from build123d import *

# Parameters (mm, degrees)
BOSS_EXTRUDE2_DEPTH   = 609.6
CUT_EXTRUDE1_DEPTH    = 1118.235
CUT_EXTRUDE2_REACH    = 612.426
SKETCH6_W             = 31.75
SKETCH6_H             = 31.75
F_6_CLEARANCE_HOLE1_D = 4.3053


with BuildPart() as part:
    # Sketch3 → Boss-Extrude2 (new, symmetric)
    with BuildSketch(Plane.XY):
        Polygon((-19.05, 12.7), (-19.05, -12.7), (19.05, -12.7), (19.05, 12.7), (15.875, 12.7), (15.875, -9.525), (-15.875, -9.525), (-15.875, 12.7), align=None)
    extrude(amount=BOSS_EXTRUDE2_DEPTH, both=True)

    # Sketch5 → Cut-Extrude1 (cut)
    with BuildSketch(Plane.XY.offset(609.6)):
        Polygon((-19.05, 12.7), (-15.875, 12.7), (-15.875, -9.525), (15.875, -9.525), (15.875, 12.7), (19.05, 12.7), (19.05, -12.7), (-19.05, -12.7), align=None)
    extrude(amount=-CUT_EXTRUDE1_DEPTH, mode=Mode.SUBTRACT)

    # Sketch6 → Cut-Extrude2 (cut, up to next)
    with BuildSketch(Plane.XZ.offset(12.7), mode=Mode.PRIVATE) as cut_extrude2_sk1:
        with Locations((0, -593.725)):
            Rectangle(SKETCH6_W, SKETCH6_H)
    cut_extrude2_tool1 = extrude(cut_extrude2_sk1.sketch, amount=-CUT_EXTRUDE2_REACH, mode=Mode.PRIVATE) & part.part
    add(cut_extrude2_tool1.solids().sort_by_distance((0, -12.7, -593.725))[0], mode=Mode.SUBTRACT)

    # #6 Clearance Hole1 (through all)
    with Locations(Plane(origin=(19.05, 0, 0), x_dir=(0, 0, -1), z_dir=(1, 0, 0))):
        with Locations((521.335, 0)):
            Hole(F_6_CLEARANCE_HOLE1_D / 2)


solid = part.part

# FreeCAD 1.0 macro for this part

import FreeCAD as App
import Part
import Sketcher

V = App.Vector
Q = App.Units.Quantity

doc = App.newDocument("Part")
body = doc.addObject("PartDesign::Body", "Body")

# Sketch on XY plane
sketch1 = body.newObject("Sketcher::SketchObject", "Sketch")
sketch1.AttachmentSupport = (doc.getObject("XY_Plane"), [""])
sketch1.MapMode = "FlatFace"
sketch1.addGeometry([
    Part.LineSegment(V(-19.1, 12.7, 0), V(-19.1, -12.7, 0)),  # 0
    Part.LineSegment(V(-19.1, -12.7, 0), V(19.1, -12.7, 0)),  # 1
    Part.LineSegment(V(19.1, -12.7, 0), V(19.1, 12.7, 0)),  # 2
    Part.LineSegment(V(19.1, 12.7, 0), V(15.9, 12.7, 0)),  # 3
    Part.LineSegment(V(15.9, 12.7, 0), V(15.9, -9.5, 0)),  # 4
    Part.LineSegment(V(15.9, -9.5, 0), V(-15.9, -9.5, 0)),  # 5
    Part.LineSegment(V(-15.9, -9.5, 0), V(-15.9, 12.7, 0)),  # 6
    Part.LineSegment(V(-15.9, 12.7, 0), V(-19.1, 12.7, 0)),  # 7
], False)
sketch1.addConstraint([
    Sketcher.Constraint("Coincident", 0, 2, 1, 1),
    Sketcher.Constraint("Coincident", 1, 2, 2, 1),
    Sketcher.Constraint("Coincident", 2, 2, 3, 1),
    Sketcher.Constraint("Coincident", 3, 2, 4, 1),
    Sketcher.Constraint("Coincident", 4, 2, 5, 1),
    Sketcher.Constraint("Coincident", 5, 2, 6, 1),
    Sketcher.Constraint("Coincident", 6, 2, 7, 1),
    Sketcher.Constraint("Coincident", 7, 2, 0, 1),
    Sketcher.Constraint("Vertical", 0),
    Sketcher.Constraint("Horizontal", 1),
    Sketcher.Constraint("Vertical", 2),
    Sketcher.Constraint("Horizontal", 3),
    Sketcher.Constraint("Vertical", 4),
    Sketcher.Constraint("Horizontal", 5),
    Sketcher.Constraint("Vertical", 6),
    Sketcher.Constraint("Horizontal", 7),
    Sketcher.Constraint("Symmetric", 0, 2, 2, 2, -1, 1),
    Sketcher.Constraint("Symmetric", 3, 2, 6, 2, -2),
    Sketcher.Constraint("DistanceY", 0, 2, 0, 1, Q("1 in")),
    Sketcher.Constraint("DistanceX", 1, 1, 1, 2, Q("1.5 in")),
    Sketcher.Constraint("DistanceX", 5, 2, 5, 1, Q("1.25 in")),
    Sketcher.Constraint("DistanceY", 4, 2, 4, 1, Q("0.875 in")),
])
pad1 = body.newObject("PartDesign::Pad", "Pad")
pad1.Profile = sketch1
pad1.Length = Q("48 in")
pad1.Midplane = True

# Sketch on XY plane
sketch2 = body.newObject("Sketcher::SketchObject", "Sketch001")
sketch2.AttachmentSupport = (doc.getObject("XY_Plane"), [""])
sketch2.MapMode = "FlatFace"
sketch2.AttachmentOffset = App.Placement(V(0, 0, 24 * 25.4), App.Rotation())
sketch2.addGeometry([
    Part.LineSegment(V(-15.9, 12.7, 0), V(-19.1, 12.7, 0)),  # 0
    Part.LineSegment(V(-19.1, 12.7, 0), V(-19.1, -12.7, 0)),  # 1
    Part.LineSegment(V(-19.1, -12.7, 0), V(19.1, -12.7, 0)),  # 2
    Part.LineSegment(V(19.1, -12.7, 0), V(19.1, 12.7, 0)),  # 3
    Part.LineSegment(V(19.1, 12.7, 0), V(15.9, 12.7, 0)),  # 4
    Part.LineSegment(V(15.9, 12.7, 0), V(15.9, -9.5, 0)),  # 5
    Part.LineSegment(V(15.9, -9.5, 0), V(-15.9, -9.5, 0)),  # 6
    Part.LineSegment(V(-15.9, -9.5, 0), V(-15.9, 12.7, 0)),  # 7
], False)
sketch2.addConstraint([
    Sketcher.Constraint("Coincident", 0, 2, 1, 1),
    Sketcher.Constraint("Coincident", 1, 2, 2, 1),
    Sketcher.Constraint("Coincident", 2, 2, 3, 1),
    Sketcher.Constraint("Coincident", 3, 2, 4, 1),
    Sketcher.Constraint("Coincident", 4, 2, 5, 1),
    Sketcher.Constraint("Coincident", 5, 2, 6, 1),
    Sketcher.Constraint("Coincident", 6, 2, 7, 1),
    Sketcher.Constraint("Coincident", 7, 2, 0, 1),
    Sketcher.Constraint("Horizontal", 0),
    Sketcher.Constraint("Vertical", 1),
    Sketcher.Constraint("Horizontal", 2),
    Sketcher.Constraint("Vertical", 3),
    Sketcher.Constraint("Horizontal", 4),
    Sketcher.Constraint("Vertical", 5),
    Sketcher.Constraint("Horizontal", 6),
    Sketcher.Constraint("Vertical", 7),
    Sketcher.Constraint("Symmetric", 0, 2, 2, 2, -1, 1),
    Sketcher.Constraint("Symmetric", 4, 2, 7, 2, -2),
    Sketcher.Constraint("DistanceY", 1, 2, 1, 1, Q("1 in")),
    Sketcher.Constraint("DistanceX", 2, 1, 2, 2, Q("1.5 in")),
    Sketcher.Constraint("DistanceX", 6, 2, 6, 1, Q("1.25 in")),
    Sketcher.Constraint("DistanceY", 5, 2, 5, 1, Q("0.875 in")),
])
pocket1 = body.newObject("PartDesign::Pocket", "Pocket")
pocket1.Profile = sketch2
pocket1.Length = Q("44.025 in")

# Sketch on XZ plane
sketch3 = body.newObject("Sketcher::SketchObject", "Sketch002")
sketch3.AttachmentSupport = (doc.getObject("XZ_Plane"), [""])
sketch3.MapMode = "FlatFace"
sketch3.AttachmentOffset = App.Placement(V(0, 0, 0.5 * 25.4), App.Rotation())
sketch3.addGeometry([
    Part.LineSegment(V(-16, -578, 0), V(-16, -610, 0)),
    Part.LineSegment(V(-16, -610, 0), V(16, -610, 0)),
    Part.LineSegment(V(16, -610, 0), V(16, -578, 0)),
    Part.LineSegment(V(16, -578, 0), V(-16, -578, 0)),
], False)
sketch3.addConstraint([
    Sketcher.Constraint("Coincident", 0, 2, 1, 1),
    Sketcher.Constraint("Coincident", 1, 2, 2, 1),
    Sketcher.Constraint("Coincident", 2, 2, 3, 1),
    Sketcher.Constraint("Coincident", 3, 2, 0, 1),
    Sketcher.Constraint("Vertical", 0),
    Sketcher.Constraint("Horizontal", 1),
    Sketcher.Constraint("Vertical", 2),
    Sketcher.Constraint("Horizontal", 3),
    Sketcher.Constraint("Equal", 3, 0),
    Sketcher.Constraint("DistanceY", 0, 2, -1, 1, Q("24 in")),
    Sketcher.Constraint("DistanceX", 1, 1, 1, 2, Q("1.25 in")),
    Sketcher.Constraint("DistanceX", 0, 2, -1, 1, Q("0.625 in")),
])
pocket2 = body.newObject("PartDesign::Pocket", "Pocket001")
pocket2.Profile = sketch3
pocket2.Type = "UpToFirst"

# Sketch on YZ plane
sketch4 = body.newObject("Sketcher::SketchObject", "Sketch003")
sketch4.AttachmentSupport = (doc.getObject("YZ_Plane"), [""])
sketch4.MapMode = "FlatFace"
sketch4.AttachmentOffset = App.Placement(V(0, 0, 0.75 * 25.4), App.Rotation())
sketch4.addGeometry(Part.Circle(V(0, -521.3, 0), V(0, 0, 1), 2.2), False)
sketch4.addConstraint([
    Sketcher.Constraint("PointOnObject", 0, 3, -2),
    Sketcher.Constraint("Diameter", 0, Q("0.1695 in")),
    Sketcher.Constraint("DistanceY", 0, 3, -1, 1, Q("20.525 in")),
])
doc.recompute()
hole = body.newObject("PartDesign::Hole", "Hole")
hole.Profile = sketch4
hole.ThreadType = "None"
hole.Diameter = Q("0.1695 in")
hole.DepthType = "ThroughAll"

doc.recompute()
